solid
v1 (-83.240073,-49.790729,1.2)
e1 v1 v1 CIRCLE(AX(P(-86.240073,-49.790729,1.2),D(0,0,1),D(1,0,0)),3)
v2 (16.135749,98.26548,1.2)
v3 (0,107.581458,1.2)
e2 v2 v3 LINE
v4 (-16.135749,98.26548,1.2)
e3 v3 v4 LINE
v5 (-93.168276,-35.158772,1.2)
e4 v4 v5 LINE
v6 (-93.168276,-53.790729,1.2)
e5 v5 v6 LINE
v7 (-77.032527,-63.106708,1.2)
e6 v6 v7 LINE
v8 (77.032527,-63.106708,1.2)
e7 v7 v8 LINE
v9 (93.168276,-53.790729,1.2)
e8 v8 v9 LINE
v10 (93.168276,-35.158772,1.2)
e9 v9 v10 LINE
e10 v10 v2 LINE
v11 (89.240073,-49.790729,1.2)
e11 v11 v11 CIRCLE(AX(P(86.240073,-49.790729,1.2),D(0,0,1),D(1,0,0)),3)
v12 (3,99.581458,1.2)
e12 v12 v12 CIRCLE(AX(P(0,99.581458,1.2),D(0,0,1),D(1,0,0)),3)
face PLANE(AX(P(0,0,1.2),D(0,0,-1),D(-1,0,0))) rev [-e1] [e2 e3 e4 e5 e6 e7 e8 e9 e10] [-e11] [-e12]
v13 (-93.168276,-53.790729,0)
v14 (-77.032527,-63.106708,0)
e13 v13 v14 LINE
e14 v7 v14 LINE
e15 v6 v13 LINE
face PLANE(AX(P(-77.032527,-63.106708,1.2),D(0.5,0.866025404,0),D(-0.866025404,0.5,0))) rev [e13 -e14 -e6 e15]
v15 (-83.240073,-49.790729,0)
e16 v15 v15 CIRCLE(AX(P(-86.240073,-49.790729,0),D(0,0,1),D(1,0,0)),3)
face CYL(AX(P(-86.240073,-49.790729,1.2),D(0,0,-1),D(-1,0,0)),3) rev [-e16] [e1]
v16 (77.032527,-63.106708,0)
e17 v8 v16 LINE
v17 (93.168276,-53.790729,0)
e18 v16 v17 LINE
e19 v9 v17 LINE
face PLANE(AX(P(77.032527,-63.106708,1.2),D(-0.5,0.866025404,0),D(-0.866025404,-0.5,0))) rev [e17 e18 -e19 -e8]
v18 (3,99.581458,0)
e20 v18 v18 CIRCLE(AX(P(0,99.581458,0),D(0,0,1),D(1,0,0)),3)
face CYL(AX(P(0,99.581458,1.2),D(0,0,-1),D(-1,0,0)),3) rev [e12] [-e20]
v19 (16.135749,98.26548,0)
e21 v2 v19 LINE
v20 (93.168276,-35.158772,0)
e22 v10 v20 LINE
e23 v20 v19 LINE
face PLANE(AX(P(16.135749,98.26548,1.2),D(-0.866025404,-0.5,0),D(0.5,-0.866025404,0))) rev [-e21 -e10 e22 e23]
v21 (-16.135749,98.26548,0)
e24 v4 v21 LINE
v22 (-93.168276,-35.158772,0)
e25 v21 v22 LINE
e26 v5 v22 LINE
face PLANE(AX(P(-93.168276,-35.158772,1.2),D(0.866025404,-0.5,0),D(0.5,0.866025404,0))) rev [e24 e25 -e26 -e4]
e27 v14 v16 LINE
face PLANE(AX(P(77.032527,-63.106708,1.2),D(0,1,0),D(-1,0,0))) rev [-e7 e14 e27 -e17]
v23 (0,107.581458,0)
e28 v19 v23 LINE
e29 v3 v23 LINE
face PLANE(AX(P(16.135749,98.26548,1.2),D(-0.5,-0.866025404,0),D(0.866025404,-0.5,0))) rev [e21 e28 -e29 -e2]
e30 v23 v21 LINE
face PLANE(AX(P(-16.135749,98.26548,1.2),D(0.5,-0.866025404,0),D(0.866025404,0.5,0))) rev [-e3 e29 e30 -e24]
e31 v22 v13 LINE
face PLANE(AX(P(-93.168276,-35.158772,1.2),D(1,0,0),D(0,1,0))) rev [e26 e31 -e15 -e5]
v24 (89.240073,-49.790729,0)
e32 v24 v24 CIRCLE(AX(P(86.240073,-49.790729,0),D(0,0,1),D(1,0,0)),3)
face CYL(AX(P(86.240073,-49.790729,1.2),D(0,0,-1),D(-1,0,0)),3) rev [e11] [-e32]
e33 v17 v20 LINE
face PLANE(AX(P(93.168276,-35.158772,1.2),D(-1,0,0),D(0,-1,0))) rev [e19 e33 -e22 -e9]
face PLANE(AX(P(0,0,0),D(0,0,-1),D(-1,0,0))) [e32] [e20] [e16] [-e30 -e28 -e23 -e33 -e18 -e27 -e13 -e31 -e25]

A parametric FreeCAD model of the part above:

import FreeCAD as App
import Part
import Sketcher

V = App.Vector
Q = App.Units.Quantity


def add_polygon(sketch, points):
    """Adds a closed chain of lines whose ends are joined by coincident constraints."""
    first, n = sketch.GeometryCount, len(points)
    for a, b in zip(points, points[1:] + points[:1]):
        sketch.addGeometry(Part.LineSegment(App.Vector(*a, 0), App.Vector(*b, 0)), False)
    for i in range(n):
        sketch.addConstraint(Sketcher.Constraint("Coincident", first + i, 2, first + (i + 1) % n, 1))

doc = App.newDocument("Part")
body = doc.addObject("PartDesign::Body", "Body")

# Sketch on XY plane
sketch1 = body.newObject("Sketcher::SketchObject", "Sketch")
sketch1.AttachmentSupport = (doc.getObject("XY_Plane"), [""])
sketch1.MapMode = "FlatFace"
add_polygon(sketch1, [(-93.2, -53.8), (-77, -63.1), (77, -63.1), (93.2, -53.8), (93.2, -35.2), (16.1, 98.3), (0, 107.6), (-16.1, 98.3), (-93.2, -35.2)])  # lines 0-8
sketch1.addGeometry(Part.Circle(V(86.2, -49.8, 0), V(0, 0, 1), 3), False)  # 9
sketch1.addGeometry(Part.Circle(V(-86.2, -49.8, 0), V(0, 0, 1), 3), False)  # 10
sketch1.addGeometry(Part.Circle(V(0, 99.6, 0), V(0, 0, 1), 3), False)  # 11
sketch1.addConstraint(Sketcher.Constraint("Horizontal", 1))
sketch1.addConstraint(Sketcher.Constraint("Vertical", 3))
sketch1.addConstraint(Sketcher.Constraint("Vertical", 8))
sketch1.addConstraint(Sketcher.Constraint("Equal", 9, 10))
sketch1.addConstraint(Sketcher.Constraint("Equal", 10, 11))
sketch1.addConstraint(Sketcher.Constraint("Symmetric", 9, 3, 10, 3, -2))
sketch1.addConstraint(Sketcher.Constraint("Symmetric", 4, 2, 6, 2, -2))
sketch1.addConstraint(Sketcher.Constraint("Symmetric", 3, 2, 7, 2, -2))
sketch1.addConstraint(Sketcher.Constraint("PointOnObject", 11, 3, -2))
sketch1.addConstraint(Sketcher.Constraint("PointOnObject", 5, 2, -2))
sketch1.addConstraint(Sketcher.Constraint("Perpendicular", 2, 4))
sketch1.addConstraint(Sketcher.Constraint("Parallel", 0, 5))
sketch1.addConstraint(Sketcher.Constraint("Perpendicular", 4, 6))
sketch1.addConstraint(Sketcher.Constraint("Horizontal", 2, 2, 8, 2))
sketch1.addConstraint(Sketcher.Constraint("Equal", 2, 5))
sketch1.addConstraint(Sketcher.Constraint("Diameter", 9, 6.0))
sketch1.addConstraint(Sketcher.Constraint("Angle", 0, Q("-30 deg")))
sketch1.addConstraint(Sketcher.Constraint("DistanceY", 2, 2, 9, 3, 4.0))
sketch1.addConstraint(Sketcher.Constraint("DistanceY", 11, 3, 5, 2, 8.0))
sketch1.addConstraint(Sketcher.Constraint("DistanceX", 0, 2, 9, 3, 163.2726))
sketch1.addConstraint(Sketcher.Constraint("DistanceX", 1, 1, 1, 2, 154.065055))
sketch1.addConstraint(Sketcher.Constraint("DistanceY", 3, 1, 3, 2, 18.631958))
sketch1.addConstraint(Sketcher.Constraint("DistanceY", 9, 3, -1, 1, 49.790729))
sketch1.addConstraint(Sketcher.Constraint("DistanceY", -1, 1, 11, 3, 99.581458))
pad1 = body.newObject("PartDesign::Pad", "Pad")
pad1.Profile = sketch1
pad1.Length = 1.2

doc.recompute()
